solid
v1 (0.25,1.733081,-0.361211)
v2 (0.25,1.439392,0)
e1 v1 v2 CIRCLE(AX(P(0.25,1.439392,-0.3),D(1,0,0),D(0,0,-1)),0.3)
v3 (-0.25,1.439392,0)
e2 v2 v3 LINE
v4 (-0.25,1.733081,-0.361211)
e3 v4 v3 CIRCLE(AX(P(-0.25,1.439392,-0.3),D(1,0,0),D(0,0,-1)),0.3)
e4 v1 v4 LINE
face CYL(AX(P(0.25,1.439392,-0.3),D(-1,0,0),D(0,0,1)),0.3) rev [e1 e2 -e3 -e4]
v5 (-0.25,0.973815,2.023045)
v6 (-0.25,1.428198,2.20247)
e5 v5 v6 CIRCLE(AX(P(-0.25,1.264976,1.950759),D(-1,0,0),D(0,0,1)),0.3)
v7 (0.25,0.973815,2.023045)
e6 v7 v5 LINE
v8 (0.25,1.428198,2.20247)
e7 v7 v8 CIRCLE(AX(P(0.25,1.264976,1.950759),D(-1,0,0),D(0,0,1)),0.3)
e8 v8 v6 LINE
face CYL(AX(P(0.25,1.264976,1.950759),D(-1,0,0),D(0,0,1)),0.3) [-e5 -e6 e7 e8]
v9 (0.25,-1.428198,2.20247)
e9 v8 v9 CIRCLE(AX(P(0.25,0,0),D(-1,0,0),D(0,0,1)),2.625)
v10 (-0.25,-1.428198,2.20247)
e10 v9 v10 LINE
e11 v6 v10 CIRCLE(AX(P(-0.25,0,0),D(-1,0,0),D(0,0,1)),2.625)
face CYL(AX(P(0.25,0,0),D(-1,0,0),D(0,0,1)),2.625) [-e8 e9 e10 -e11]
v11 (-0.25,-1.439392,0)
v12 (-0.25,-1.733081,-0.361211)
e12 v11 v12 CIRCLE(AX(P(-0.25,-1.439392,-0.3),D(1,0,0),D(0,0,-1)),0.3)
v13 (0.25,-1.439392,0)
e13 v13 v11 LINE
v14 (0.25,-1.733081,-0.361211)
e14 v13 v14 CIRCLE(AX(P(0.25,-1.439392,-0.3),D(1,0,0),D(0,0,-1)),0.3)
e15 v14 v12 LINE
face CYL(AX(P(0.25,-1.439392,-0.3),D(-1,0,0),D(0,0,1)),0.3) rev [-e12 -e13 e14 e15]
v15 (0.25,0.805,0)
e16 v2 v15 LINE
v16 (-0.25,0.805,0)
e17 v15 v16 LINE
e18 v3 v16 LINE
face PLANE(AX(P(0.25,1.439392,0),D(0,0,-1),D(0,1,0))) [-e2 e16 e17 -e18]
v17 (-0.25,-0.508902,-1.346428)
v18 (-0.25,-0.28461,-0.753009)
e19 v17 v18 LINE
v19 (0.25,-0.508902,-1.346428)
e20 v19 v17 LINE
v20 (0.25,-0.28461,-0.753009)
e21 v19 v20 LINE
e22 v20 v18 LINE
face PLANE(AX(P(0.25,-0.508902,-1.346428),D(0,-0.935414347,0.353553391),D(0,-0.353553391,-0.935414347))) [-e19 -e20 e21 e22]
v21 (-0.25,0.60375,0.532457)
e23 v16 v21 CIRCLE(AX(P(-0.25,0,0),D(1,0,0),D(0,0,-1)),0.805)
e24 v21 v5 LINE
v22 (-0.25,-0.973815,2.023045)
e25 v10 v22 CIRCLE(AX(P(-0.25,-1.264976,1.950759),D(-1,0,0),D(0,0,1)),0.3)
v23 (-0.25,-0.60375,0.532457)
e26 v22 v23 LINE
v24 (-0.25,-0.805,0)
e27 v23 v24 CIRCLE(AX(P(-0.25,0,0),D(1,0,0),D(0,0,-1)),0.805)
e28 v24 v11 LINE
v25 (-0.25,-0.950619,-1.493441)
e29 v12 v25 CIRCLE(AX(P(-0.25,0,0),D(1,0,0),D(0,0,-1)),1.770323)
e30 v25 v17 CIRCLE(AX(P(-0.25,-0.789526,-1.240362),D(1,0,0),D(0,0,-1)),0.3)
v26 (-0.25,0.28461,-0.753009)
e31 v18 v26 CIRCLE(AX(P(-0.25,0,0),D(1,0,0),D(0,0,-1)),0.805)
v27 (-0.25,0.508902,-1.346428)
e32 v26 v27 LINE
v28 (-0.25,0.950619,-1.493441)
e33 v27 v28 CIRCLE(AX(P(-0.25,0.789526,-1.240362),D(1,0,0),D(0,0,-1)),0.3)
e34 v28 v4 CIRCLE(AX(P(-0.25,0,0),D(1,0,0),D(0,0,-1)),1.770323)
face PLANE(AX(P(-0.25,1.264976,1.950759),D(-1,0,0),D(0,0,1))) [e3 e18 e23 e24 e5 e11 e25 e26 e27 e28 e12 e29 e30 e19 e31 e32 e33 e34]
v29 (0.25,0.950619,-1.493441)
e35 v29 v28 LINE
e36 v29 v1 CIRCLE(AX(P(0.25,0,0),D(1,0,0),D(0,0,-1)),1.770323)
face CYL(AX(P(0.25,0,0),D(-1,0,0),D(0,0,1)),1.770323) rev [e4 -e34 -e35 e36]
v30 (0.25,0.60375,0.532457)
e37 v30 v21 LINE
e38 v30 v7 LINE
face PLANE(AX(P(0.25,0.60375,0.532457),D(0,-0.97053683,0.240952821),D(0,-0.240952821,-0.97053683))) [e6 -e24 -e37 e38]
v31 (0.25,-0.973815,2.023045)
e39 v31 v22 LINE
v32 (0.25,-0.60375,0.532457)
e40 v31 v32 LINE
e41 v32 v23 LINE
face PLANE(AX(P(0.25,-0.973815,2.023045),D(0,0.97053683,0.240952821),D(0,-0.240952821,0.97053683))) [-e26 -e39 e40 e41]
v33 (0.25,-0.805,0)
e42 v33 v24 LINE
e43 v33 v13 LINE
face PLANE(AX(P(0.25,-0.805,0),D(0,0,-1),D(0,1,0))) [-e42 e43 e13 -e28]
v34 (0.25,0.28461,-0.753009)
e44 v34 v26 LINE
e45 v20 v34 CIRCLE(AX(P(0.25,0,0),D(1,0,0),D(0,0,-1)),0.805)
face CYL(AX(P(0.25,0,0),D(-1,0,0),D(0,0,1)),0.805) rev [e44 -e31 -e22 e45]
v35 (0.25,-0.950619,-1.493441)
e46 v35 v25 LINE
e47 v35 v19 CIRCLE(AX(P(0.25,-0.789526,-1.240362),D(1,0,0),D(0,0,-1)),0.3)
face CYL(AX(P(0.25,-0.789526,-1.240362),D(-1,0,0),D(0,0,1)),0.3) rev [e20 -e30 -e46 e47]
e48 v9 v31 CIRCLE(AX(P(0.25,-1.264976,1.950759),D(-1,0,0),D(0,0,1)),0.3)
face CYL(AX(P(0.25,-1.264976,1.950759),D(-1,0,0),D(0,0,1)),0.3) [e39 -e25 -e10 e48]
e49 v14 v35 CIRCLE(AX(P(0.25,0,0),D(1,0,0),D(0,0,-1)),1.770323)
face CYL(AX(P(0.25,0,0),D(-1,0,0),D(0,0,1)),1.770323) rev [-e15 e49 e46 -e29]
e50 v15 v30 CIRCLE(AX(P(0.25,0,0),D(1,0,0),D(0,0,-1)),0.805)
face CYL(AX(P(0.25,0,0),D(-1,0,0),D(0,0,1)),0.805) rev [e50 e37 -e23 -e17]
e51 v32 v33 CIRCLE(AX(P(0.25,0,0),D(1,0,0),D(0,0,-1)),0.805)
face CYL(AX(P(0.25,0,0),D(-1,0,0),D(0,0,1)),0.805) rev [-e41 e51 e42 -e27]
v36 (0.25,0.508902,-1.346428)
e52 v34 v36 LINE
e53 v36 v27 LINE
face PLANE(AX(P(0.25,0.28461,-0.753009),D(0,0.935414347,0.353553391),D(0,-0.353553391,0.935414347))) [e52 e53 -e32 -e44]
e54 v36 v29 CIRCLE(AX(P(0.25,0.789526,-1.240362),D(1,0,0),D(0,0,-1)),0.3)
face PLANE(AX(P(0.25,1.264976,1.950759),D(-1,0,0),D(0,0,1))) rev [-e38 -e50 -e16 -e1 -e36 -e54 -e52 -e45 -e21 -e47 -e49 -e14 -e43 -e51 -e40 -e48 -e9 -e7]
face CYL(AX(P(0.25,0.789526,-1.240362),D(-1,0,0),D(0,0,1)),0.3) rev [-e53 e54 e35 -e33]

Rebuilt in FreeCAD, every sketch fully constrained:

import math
import FreeCAD as App
import Part
import Sketcher

V = App.Vector
Q = App.Units.Quantity

doc = App.newDocument("Part")
body = doc.addObject("PartDesign::Body", "Body")

# Sketch on YZ plane
sketch1 = body.newObject("Sketcher::SketchObject", "Sketch")
sketch1.AttachmentSupport = (doc.getObject("YZ_Plane"), [""])
sketch1.MapMode = "FlatFace"
sketch1.AttachmentOffset = App.Placement(V(0, 0, -0.25), App.Rotation())
sketch1.addGeometry(Part.LineSegment(V(-0.97, 2.02, 0), V(-0.6, 0.53, 0)), False)
sketch1.addGeometry(Part.ArcOfCircle(Part.Circle(V(0, 0, 0), V(0, 0, 1), 0.81), math.radians(139), math.radians(180)), False)
sketch1.addGeometry(Part.LineSegment(V(-0.81, 0, 0), V(-1.44, 0, 0)), False)
sketch1.addGeometry(Part.ArcOfCircle(Part.Circle(V(-1.44, -0.3, 0), V(0, 0, 1), 0.3), math.radians(90), math.radians(192)), False)
sketch1.addGeometry(Part.ArcOfCircle(Part.Circle(V(0, 0, 0), V(0, 0, 1), 1.77), math.radians(-168), math.radians(-122)), False)
sketch1.addGeometry(Part.ArcOfCircle(Part.Circle(V(-0.79, -1.24, 0), V(0, 0, 1), 0.3), math.radians(-122), math.radians(-21)), False)
sketch1.addGeometry(Part.LineSegment(V(-0.51, -1.35, 0), V(-0.28, -0.75, 0)), False)
sketch1.addGeometry(Part.ArcOfCircle(Part.Circle(V(0, 0, 0), V(0, 0, 1), 0.8), math.radians(-111), math.radians(-69)), False)
sketch1.addGeometry(Part.LineSegment(V(0.28, -0.75, 0), V(0.51, -1.35, 0)), False)
sketch1.addGeometry(Part.ArcOfCircle(Part.Circle(V(0.79, -1.24, 0), V(0, 0, 1), 0.3), math.radians(-159), math.radians(-58)), False)
sketch1.addGeometry(Part.ArcOfCircle(Part.Circle(V(0, 0, 0), V(0, 0, 1), 1.77), math.radians(-58), math.radians(-12)), False)
sketch1.addGeometry(Part.ArcOfCircle(Part.Circle(V(1.44, -0.3, 0), V(0, 0, 1), 0.3), math.radians(-12), math.radians(90)), False)
sketch1.addGeometry(Part.LineSegment(V(1.44, 0, 0), V(0.81, 0, 0)), False)
sketch1.addGeometry(Part.ArcOfCircle(Part.Circle(V(0, 0, 0), V(0, 0, 1), 0.81), math.radians(0), math.radians(41)), False)
sketch1.addGeometry(Part.LineSegment(V(0.6, 0.53, 0), V(0.97, 2.02, 0)), False)
sketch1.addGeometry(Part.ArcOfCircle(Part.Circle(V(1.26, 1.95, 0), V(0, 0, 1), 0.3), math.radians(57), math.radians(166)), False)
sketch1.addGeometry(Part.ArcOfCircle(Part.Circle(V(0, 0, 0), V(0, 0, 1), 2.62), math.radians(123), math.radians(417)), False)
sketch1.addGeometry(Part.ArcOfCircle(Part.Circle(V(-1.26, 1.95, 0), V(0, 0, 1), 0.3), math.radians(14), math.radians(123)), False)
sketch1.addConstraint(Sketcher.Constraint("Coincident", 0, 2, 1, 1))
sketch1.addConstraint(Sketcher.Constraint("Coincident", 1, 2, 2, 1))
sketch1.addConstraint(Sketcher.Constraint("Tangent", 2, 2, 3, 1))
sketch1.addConstraint(Sketcher.Constraint("Tangent", 3, 2, 4, 1))
sketch1.addConstraint(Sketcher.Constraint("Tangent", 4, 2, 5, 1))
sketch1.addConstraint(Sketcher.Constraint("Tangent", 5, 2, 6, 1))
sketch1.addConstraint(Sketcher.Constraint("Coincident", 6, 2, 7, 1))
sketch1.addConstraint(Sketcher.Constraint("Coincident", 7, 2, 8, 1))
sketch1.addConstraint(Sketcher.Constraint("Tangent", 8, 2, 9, 1))
sketch1.addConstraint(Sketcher.Constraint("Tangent", 9, 2, 10, 1))
sketch1.addConstraint(Sketcher.Constraint("Tangent", 10, 2, 11, 1))
sketch1.addConstraint(Sketcher.Constraint("Tangent", 11, 2, 12, 1))
sketch1.addConstraint(Sketcher.Constraint("Coincident", 12, 2, 13, 1))
sketch1.addConstraint(Sketcher.Constraint("Coincident", 13, 2, 14, 1))
sketch1.addConstraint(Sketcher.Constraint("Tangent", 14, 2, 15, 2))
sketch1.addConstraint(Sketcher.Constraint("Tangent", 15, 1, 16, 2))
sketch1.addConstraint(Sketcher.Constraint("Tangent", 16, 1, 17, 2))
sketch1.addConstraint(Sketcher.Constraint("Tangent", 17, 1, 0, 1))
sketch1.addConstraint(Sketcher.Constraint("Horizontal", 2))
sketch1.addConstraint(Sketcher.Constraint("Horizontal", 12))
sketch1.addConstraint(Sketcher.Constraint("Coincident", 1, 3, -1, 1))
sketch1.addConstraint(Sketcher.Constraint("Coincident", 4, 3, -1, 1))
sketch1.addConstraint(Sketcher.Constraint("Coincident", 7, 3, -1, 1))
sketch1.addConstraint(Sketcher.Constraint("Coincident", 10, 3, -1, 1))
sketch1.addConstraint(Sketcher.Constraint("Coincident", 13, 3, -1, 1))
sketch1.addConstraint(Sketcher.Constraint("Coincident", 16, 3, -1, 1))
sketch1.addConstraint(Sketcher.Constraint("Equal", 3, 5))
sketch1.addConstraint(Sketcher.Constraint("Equal", 1, 7))
sketch1.addConstraint(Sketcher.Constraint("Equal", 5, 9))
sketch1.addConstraint(Sketcher.Constraint("Equal", 4, 10))
sketch1.addConstraint(Sketcher.Constraint("Equal", 9, 11))
sketch1.addConstraint(Sketcher.Constraint("Equal", 7, 13))
sketch1.addConstraint(Sketcher.Constraint("Equal", 11, 15))
sketch1.addConstraint(Sketcher.Constraint("Equal", 15, 17))
sketch1.addConstraint(Sketcher.Constraint("Symmetric", 2, 2, 11, 2, -1, 1))
sketch1.addConstraint(Sketcher.Constraint("Symmetric", 5, 2, 8, 2, -2))
sketch1.addConstraint(Sketcher.Constraint("Symmetric", 14, 2, 17, 1, -2))
sketch1.addConstraint(Sketcher.Constraint("Radius", 3, Q("0.3 mm")))
sketch1.addConstraint(Sketcher.Constraint("Radius", 1, Q("0.805 mm")))
sketch1.addConstraint(Sketcher.Constraint("Radius", 16, Q("2.625 mm")))
sketch1.addConstraint(Sketcher.Constraint("Radius", 4, Q("1.770323 mm")))
sketch1.addConstraint(Sketcher.Constraint("DistanceX", 5, 2, -1, 1, Q("0.508902 mm")))
sketch1.addConstraint(Sketcher.Constraint("DistanceX", -1, 1, 15, 1, Q("1.428198 mm")))
sketch1.addConstraint(Sketcher.Constraint("Distance", 0, Q("1.535838 mm")))
sketch1.addConstraint(Sketcher.Constraint("Distance", 6, Q("0.634392 mm")))
pad1 = body.newObject("PartDesign::Pad", "Pad")
pad1.Profile = sketch1
pad1.Length = 0.5

doc.recompute()
